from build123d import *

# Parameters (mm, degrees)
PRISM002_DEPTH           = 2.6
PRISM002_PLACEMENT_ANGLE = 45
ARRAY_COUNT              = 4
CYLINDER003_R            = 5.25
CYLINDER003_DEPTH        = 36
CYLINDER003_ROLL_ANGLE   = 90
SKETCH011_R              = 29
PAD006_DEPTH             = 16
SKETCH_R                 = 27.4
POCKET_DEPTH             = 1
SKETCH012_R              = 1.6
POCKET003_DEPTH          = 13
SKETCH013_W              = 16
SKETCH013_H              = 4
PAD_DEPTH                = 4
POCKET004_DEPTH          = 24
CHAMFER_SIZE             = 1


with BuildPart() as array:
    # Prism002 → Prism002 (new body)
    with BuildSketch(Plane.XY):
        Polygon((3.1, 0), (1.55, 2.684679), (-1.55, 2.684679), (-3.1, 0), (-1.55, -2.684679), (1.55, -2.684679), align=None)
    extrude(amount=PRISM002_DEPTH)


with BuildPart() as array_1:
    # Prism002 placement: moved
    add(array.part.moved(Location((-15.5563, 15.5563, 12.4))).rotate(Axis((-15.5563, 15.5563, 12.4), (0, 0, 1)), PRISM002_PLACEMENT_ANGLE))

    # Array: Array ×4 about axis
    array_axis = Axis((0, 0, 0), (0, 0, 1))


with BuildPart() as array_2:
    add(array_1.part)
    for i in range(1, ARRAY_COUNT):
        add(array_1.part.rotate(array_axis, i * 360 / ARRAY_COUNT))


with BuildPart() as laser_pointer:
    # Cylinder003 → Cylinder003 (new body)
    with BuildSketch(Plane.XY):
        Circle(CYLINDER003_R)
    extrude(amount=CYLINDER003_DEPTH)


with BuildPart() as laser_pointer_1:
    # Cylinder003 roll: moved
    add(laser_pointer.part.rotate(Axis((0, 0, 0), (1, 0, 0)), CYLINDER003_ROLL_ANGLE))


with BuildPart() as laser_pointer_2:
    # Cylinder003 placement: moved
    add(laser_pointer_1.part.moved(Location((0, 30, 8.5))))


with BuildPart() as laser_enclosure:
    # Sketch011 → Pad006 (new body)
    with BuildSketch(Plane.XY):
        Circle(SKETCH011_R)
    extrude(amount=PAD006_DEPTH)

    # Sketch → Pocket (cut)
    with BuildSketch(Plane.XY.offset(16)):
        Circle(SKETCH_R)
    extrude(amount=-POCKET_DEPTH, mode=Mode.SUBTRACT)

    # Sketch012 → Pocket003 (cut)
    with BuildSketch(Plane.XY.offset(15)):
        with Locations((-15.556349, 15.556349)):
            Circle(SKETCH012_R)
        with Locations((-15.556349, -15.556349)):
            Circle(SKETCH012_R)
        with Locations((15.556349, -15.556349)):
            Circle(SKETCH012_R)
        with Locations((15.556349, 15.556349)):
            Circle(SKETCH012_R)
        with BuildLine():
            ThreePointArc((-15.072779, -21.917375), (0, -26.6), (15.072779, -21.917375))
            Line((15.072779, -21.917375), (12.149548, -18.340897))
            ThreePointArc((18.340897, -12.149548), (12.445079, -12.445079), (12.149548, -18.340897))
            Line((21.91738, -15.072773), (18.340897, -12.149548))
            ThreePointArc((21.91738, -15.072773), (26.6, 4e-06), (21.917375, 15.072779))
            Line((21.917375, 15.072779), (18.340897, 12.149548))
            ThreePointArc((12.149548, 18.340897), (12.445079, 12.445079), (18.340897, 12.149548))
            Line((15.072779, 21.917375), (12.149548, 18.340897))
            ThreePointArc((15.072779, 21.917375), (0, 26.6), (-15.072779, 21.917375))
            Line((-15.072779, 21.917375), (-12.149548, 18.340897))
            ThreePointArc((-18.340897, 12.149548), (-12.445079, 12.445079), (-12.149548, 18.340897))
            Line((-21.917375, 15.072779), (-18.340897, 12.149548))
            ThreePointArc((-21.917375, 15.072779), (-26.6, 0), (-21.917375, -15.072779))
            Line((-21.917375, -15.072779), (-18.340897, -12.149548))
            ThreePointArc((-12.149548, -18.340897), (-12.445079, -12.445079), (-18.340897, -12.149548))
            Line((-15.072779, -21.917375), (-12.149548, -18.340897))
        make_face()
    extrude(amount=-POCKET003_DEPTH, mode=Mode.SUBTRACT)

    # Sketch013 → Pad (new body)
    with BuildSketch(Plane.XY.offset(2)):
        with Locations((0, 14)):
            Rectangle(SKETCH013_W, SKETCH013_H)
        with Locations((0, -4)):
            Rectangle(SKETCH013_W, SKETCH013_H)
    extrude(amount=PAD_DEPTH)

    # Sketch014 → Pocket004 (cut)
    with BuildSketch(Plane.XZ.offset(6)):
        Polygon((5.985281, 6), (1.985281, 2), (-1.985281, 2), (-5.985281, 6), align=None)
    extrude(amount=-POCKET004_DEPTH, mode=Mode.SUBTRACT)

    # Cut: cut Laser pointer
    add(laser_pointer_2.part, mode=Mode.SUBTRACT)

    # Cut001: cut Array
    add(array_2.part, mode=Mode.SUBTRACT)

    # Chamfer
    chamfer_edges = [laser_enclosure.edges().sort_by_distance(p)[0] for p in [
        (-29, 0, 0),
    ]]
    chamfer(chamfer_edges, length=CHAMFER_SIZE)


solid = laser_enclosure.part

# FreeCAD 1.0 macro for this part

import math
import FreeCAD as App
import Part
import Sketcher
Q = App.Units.Quantity


def edges_at(feature, points):
    """Names of the edges that pass closest to the given points."""
    edges = feature.Shape.Edges
    near = lambda p: min(range(len(edges)), key=lambda i: edges[i].distToShape(Part.Vertex(*p))[0])
    return sorted({f"Edge{near(p) + 1}" for p in points})

doc = App.newDocument("Part")
body = doc.addObject("PartDesign::Body", "Body")

# Sketch on XY plane
sketch1 = body.newObject("Sketcher::SketchObject", "Sketch")
sketch1.AttachmentSupport = (doc.getObject("XY_Plane"), [""])
sketch1.MapMode = "FlatFace"
sketch1.addGeometry([
    Part.LineSegment(App.Vector(3.1, 0, 0), App.Vector(1.55, 2.684679, 0)),  # 0
    Part.LineSegment(App.Vector(1.55, 2.684679, 0), App.Vector(-1.55, 2.684679, 0)),  # 1
    Part.LineSegment(App.Vector(-1.55, 2.684679, 0), App.Vector(-3.1, 0, 0)),  # 2
    Part.LineSegment(App.Vector(-3.1, 0, 0), App.Vector(-1.55, -2.684679, 0)),  # 3
    Part.LineSegment(App.Vector(-1.55, -2.684679, 0), App.Vector(1.55, -2.684679, 0)),  # 4
    Part.LineSegment(App.Vector(1.55, -2.684679, 0), App.Vector(3.1, 0, 0)),  # 5
], False)
sketch1.addConstraint([
    Sketcher.Constraint("Coincident", 0, 2, 1, 1),
    Sketcher.Constraint("Coincident", 1, 2, 2, 1),
    Sketcher.Constraint("Coincident", 2, 2, 3, 1),
    Sketcher.Constraint("Coincident", 3, 2, 4, 1),
    Sketcher.Constraint("Coincident", 4, 2, 5, 1),
    Sketcher.Constraint("Coincident", 5, 2, 0, 1),
    Sketcher.Constraint("Horizontal", 1),
    Sketcher.Constraint("Horizontal", 4),
    Sketcher.Constraint("Symmetric", 0, 2, 3, 2, -1, 1),
    Sketcher.Constraint("Symmetric", 2, 2, 5, 2, -1, 1),
    Sketcher.Constraint("PointOnObject", 2, 2, -1),
    Sketcher.Constraint("Parallel", 2, 5),
    Sketcher.Constraint("Vertical", 1, 2, 3, 2),
    Sketcher.Constraint("Angle", 0, Q("119.999998 deg")),
    Sketcher.Constraint("DistanceX", 1, 2, 1, 1, Q("3.1 mm")),
    Sketcher.Constraint("Distance", 0, Q("3.1 mm")),
])
pad1 = body.newObject("PartDesign::Pad", "Pad")
pad1.Profile = sketch1
pad1.Length = 2.6
body2 = doc.addObject("PartDesign::Body", "Body001")
doc.recompute()

body.Placement = App.Placement(App.Vector(-15.5563, 15.5563, 12.4), App.Rotation(App.Vector(0, 0, 1), 45))
boolean = body2.newObject("PartDesign::Boolean", "Boolean")
boolean.Type = "Fuse"
boolean.addObjects([body])
body3 = doc.addObject("PartDesign::Body", "Body002")
body3.AllowCompound = True
doc.recompute()

body3.BaseFeature = body2
doc.recompute()

body4 = doc.addObject("PartDesign::Body", "Body003")
body4.BaseFeature = body2
body4.Placement = App.Placement(App.Vector(0, 0, 0), App.Rotation(App.Vector(0, 0, 1), 90))
boolean2 = body3.newObject("PartDesign::Boolean", "Boolean001")
boolean2.Type = "Fuse"
boolean2.addObjects([body4])
doc.recompute()

body5 = doc.addObject("PartDesign::Body", "Body004")
body5.BaseFeature = body2
body5.Placement = App.Placement(App.Vector(0, 0, 0), App.Rotation(App.Vector(0, 0, 1), 180))
boolean3 = body3.newObject("PartDesign::Boolean", "Boolean002")
boolean3.Type = "Fuse"
boolean3.addObjects([body5])
doc.recompute()

body2.Placement = App.Placement(App.Vector(0, 0, 0), App.Rotation(App.Vector(0, 0, 1), 270))
boolean4 = body3.newObject("PartDesign::Boolean", "Boolean003")
boolean4.Type = "Fuse"
boolean4.addObjects([body2])
body6 = doc.addObject("PartDesign::Body", "Body005")

# Sketch on XY plane
sketch2 = body6.newObject("Sketcher::SketchObject", "Sketch001")
sketch2.AttachmentSupport = (doc.getObject("XY_Plane005"), [""])
sketch2.MapMode = "FlatFace"
sketch2.addGeometry(Part.Circle(App.Vector(0, 0, 0), App.Vector(0, 0, 1), 5.25), False)
sketch2.addConstraint([
    Sketcher.Constraint("Coincident", 0, 3, -1, 1),
    Sketcher.Constraint("Diameter", 0, Q("10.5 mm")),
])
pad2 = body6.newObject("PartDesign::Pad", "Pad001")
pad2.Profile = sketch2
pad2.Length = 36
body7 = doc.addObject("PartDesign::Body", "Body006")
doc.recompute()

body6.Placement = App.Placement(App.Vector(0, 0, 0), App.Rotation(App.Vector(1, 0, 0), 90))
boolean5 = body7.newObject("PartDesign::Boolean", "Boolean004")
boolean5.Type = "Fuse"
boolean5.addObjects([body6])
body8 = doc.addObject("PartDesign::Body", "Body007")
doc.recompute()

body7.Placement = App.Placement(App.Vector(0, 30, 8.5), App.Rotation(App.Vector(0, 0, 1), 0))
boolean6 = body8.newObject("PartDesign::Boolean", "Boolean005")
boolean6.Type = "Fuse"
boolean6.addObjects([body7])
body9 = doc.addObject("PartDesign::Body", "Body008")

# Sketch on XY plane
sketch3 = body9.newObject("Sketcher::SketchObject", "Sketch002")
sketch3.AttachmentSupport = (doc.getObject("XY_Plane008"), [""])
sketch3.MapMode = "FlatFace"
sketch3.addGeometry(Part.Circle(App.Vector(0, 0, 0), App.Vector(0, 0, 1), 29), False)
sketch3.addConstraint([
    Sketcher.Constraint("Coincident", 0, 3, -1, 1),
    Sketcher.Constraint("Diameter", 0, Q("58 mm")),
])
pad3 = body9.newObject("PartDesign::Pad", "Pad002")
pad3.Profile = sketch3
pad3.Length = 16

# Sketch on XY plane
sketch4 = body9.newObject("Sketcher::SketchObject", "Sketch003")
sketch4.AttachmentSupport = (doc.getObject("XY_Plane008"), [""])
sketch4.MapMode = "FlatFace"
sketch4.AttachmentOffset = App.Placement(App.Vector(0, 0, 16), App.Rotation())
sketch4.addGeometry(Part.Circle(App.Vector(0, 0, 0), App.Vector(0, 0, 1), 27.4), False)
sketch4.addConstraint([
    Sketcher.Constraint("Coincident", 0, 3, -1, 1),
    Sketcher.Constraint("Diameter", 0, Q("54.8 mm")),
])
pocket1 = body9.newObject("PartDesign::Pocket", "Pocket")
pocket1.Profile = sketch4
pocket1.Length = 1

# Sketch on XY plane
sketch5 = body9.newObject("Sketcher::SketchObject", "Sketch004")
sketch5.AttachmentSupport = (doc.getObject("XY_Plane008"), [""])
sketch5.MapMode = "FlatFace"
sketch5.AttachmentOffset = App.Placement(App.Vector(0, 0, 15), App.Rotation())
sketch5.addGeometry([
    Part.Circle(App.Vector(-15.556349, 15.556349, 0), App.Vector(0, 0, 1), 1.6),  # 0
    Part.Circle(App.Vector(-15.556349, -15.556349, 0), App.Vector(0, 0, 1), 1.6),  # 1
    Part.Circle(App.Vector(15.556349, -15.556349, 0), App.Vector(0, 0, 1), 1.6),  # 2
    Part.Circle(App.Vector(15.556349, 15.556349, 0), App.Vector(0, 0, 1), 1.6),  # 3
    Part.ArcOfCircle(Part.Circle(App.Vector(0, -0.000001, 0), App.Vector(0, 0, 1), 26.599999), math.radians(-124.51666), math.radians(-55.48334)),  # 4
    Part.LineSegment(App.Vector(15.072779, -21.917375, 0), App.Vector(12.149548, -18.340897, 0)),  # 5
    Part.ArcOfCircle(Part.Circle(App.Vector(15.556349, -15.556349, 0), App.Vector(0, 0, 1), 4.4), math.radians(50.739159), math.radians(219.260841)),  # 6
    Part.LineSegment(App.Vector(18.340897, -12.149548, 0), App.Vector(21.91738, -15.072773, 0)),  # 7
    Part.ArcOfCircle(Part.Circle(App.Vector(-0.000001, -0.000001, 0), App.Vector(0, 0, 1), 26.600001), math.radians(-34.516639), math.radians(34.516658)),  # 8
    Part.LineSegment(App.Vector(21.917375, 15.072779, 0), App.Vector(18.340897, 12.149548, 0)),  # 9
    Part.ArcOfCircle(Part.Circle(App.Vector(15.556349, 15.556349, 0), App.Vector(0, 0, 1), 4.4), math.radians(140.739159), math.radians(309.260841)),  # 10
    Part.LineSegment(App.Vector(12.149548, 18.340897, 0), App.Vector(15.072779, 21.917375, 0)),  # 11
    Part.ArcOfCircle(Part.Circle(App.Vector(0, 0.000001, 0), App.Vector(0, 0, 1), 26.599999), math.radians(55.48334), math.radians(124.51666)),  # 12
    Part.LineSegment(App.Vector(-15.072779, 21.917375, 0), App.Vector(-12.149548, 18.340897, 0)),  # 13
    Part.ArcOfCircle(Part.Circle(App.Vector(-15.556349, 15.556349, 0), App.Vector(0, 0, 1), 4.4), math.radians(-129.260841), math.radians(39.260841)),  # 14
    Part.LineSegment(App.Vector(-18.340897, 12.149548, 0), App.Vector(-21.917375, 15.072779, 0)),  # 15
    Part.ArcOfCircle(Part.Circle(App.Vector(-0.000001, 0, 0), App.Vector(0, 0, 1), 26.599999), math.radians(145.48334), math.radians(214.51666)),  # 16
    Part.LineSegment(App.Vector(-21.917375, -15.072779, 0), App.Vector(-18.340897, -12.149548, 0)),  # 17
    Part.ArcOfCircle(Part.Circle(App.Vector(-15.556349, -15.556349, 0), App.Vector(0, 0, 1), 4.4), math.radians(-39.260841), math.radians(129.260841)),  # 18
    Part.LineSegment(App.Vector(-12.149548, -18.340897, 0), App.Vector(-15.072779, -21.917375, 0)),  # 19
], False)
sketch5.addConstraint([
    Sketcher.Constraint("Coincident", 4, 2, 5, 1),
    Sketcher.Constraint("Tangent", 5, 2, 6, 2),
    Sketcher.Constraint("Coincident", 6, 1, 7, 1),
    Sketcher.Constraint("Coincident", 7, 2, 8, 1),
    Sketcher.Constraint("Coincident", 8, 2, 9, 1),
    Sketcher.Constraint("Tangent", 9, 2, 10, 2),
    Sketcher.Constraint("Tangent", 10, 1, 11, 1),
    Sketcher.Constraint("Coincident", 11, 2, 12, 1),
    Sketcher.Constraint("Coincident", 12, 2, 13, 1),
    Sketcher.Constraint("Tangent", 13, 2, 14, 2),
    Sketcher.Constraint("Tangent", 14, 1, 15, 1),
    Sketcher.Constraint("Coincident", 15, 2, 16, 1),
    Sketcher.Constraint("Coincident", 16, 2, 17, 1),
    Sketcher.Constraint("Tangent", 17, 2, 18, 2),
    Sketcher.Constraint("Tangent", 18, 1, 19, 1),
    Sketcher.Constraint("Coincident", 19, 2, 4, 1),
    Sketcher.Constraint("Coincident", 4, 3, -1, 1),
    Sketcher.Constraint("Coincident", 8, 3, -1, 1),
    Sketcher.Constraint("Coincident", 12, 3, -1, 1),
    Sketcher.Constraint("Coincident", 16, 3, -1, 1),
    Sketcher.Constraint("Coincident", 6, 3, 2, 3),
    Sketcher.Constraint("Coincident", 10, 3, 3, 3),
    Sketcher.Constraint("Coincident", 14, 3, 0, 3),
    Sketcher.Constraint("Coincident", 18, 3, 1, 3),
    Sketcher.Constraint("Equal", 0, 1),
    Sketcher.Constraint("Equal", 1, 2),
    Sketcher.Constraint("Equal", 2, 3),
    Sketcher.Constraint("Equal", 6, 10),
    Sketcher.Constraint("Equal", 4, 12),
    Sketcher.Constraint("Equal", 10, 14),
    Sketcher.Constraint("Equal", 12, 16),
    Sketcher.Constraint("Equal", 14, 18),
    Sketcher.Constraint("Symmetric", 0, 3, 2, 3, -1, 1),
    Sketcher.Constraint("Symmetric", 1, 3, 3, 3, -1, 1),
    Sketcher.Constraint("Symmetric", 7, 2, 15, 2, -1, 1),
    Sketcher.Constraint("Symmetric", 1, 3, 2, 3, -2),
    Sketcher.Constraint("Perpendicular", 5, 9),
    Sketcher.Constraint("Perpendicular", 7, 11),
    Sketcher.Constraint("Perpendicular", 9, 13),
    Sketcher.Constraint("Perpendicular", 13, 17),
    Sketcher.Constraint("Perpendicular", 15, 19),
    Sketcher.Constraint("Horizontal", 11, 2, 12, 2),
    Sketcher.Constraint("Horizontal", 6, 1, 17, 2),
    Sketcher.Constraint("Equal", 5, 7),
    Sketcher.Constraint("Diameter", 0, Q("3.2 mm")),
    Sketcher.Constraint("Radius", 4, Q("26.599999 mm")),
    Sketcher.Constraint("Radius", 6, Q("4.4 mm")),
    Sketcher.Constraint("DistanceY", 1, 3, 0, 3, Q("31.112698 mm")),
    Sketcher.Constraint("DistanceX", 5, 2, 6, 3, Q("3.406801 mm")),
])
pocket2 = body9.newObject("PartDesign::Pocket", "Pocket001")
pocket2.Profile = sketch5
pocket2.Length = 13

# Sketch on XY plane
sketch6 = body9.newObject("Sketcher::SketchObject", "Sketch005")
sketch6.AttachmentSupport = (doc.getObject("XY_Plane008"), [""])
sketch6.MapMode = "FlatFace"
sketch6.AttachmentOffset = App.Placement(App.Vector(0, 0, 2), App.Rotation())
sketch6.addGeometry([
    Part.LineSegment(App.Vector(-8, 16, 0), App.Vector(-8, 12, 0)),  # 0
    Part.LineSegment(App.Vector(-8, 12, 0), App.Vector(8, 12, 0)),  # 1
    Part.LineSegment(App.Vector(8, 12, 0), App.Vector(8, 16, 0)),  # 2
    Part.LineSegment(App.Vector(8, 16, 0), App.Vector(-8, 16, 0)),  # 3
    Part.LineSegment(App.Vector(-8, -2, 0), App.Vector(-8, -6, 0)),  # 4
    Part.LineSegment(App.Vector(-8, -6, 0), App.Vector(8, -6, 0)),  # 5
    Part.LineSegment(App.Vector(8, -6, 0), App.Vector(8, -2, 0)),  # 6
    Part.LineSegment(App.Vector(8, -2, 0), App.Vector(-8, -2, 0)),  # 7
], False)
sketch6.addConstraint([
    Sketcher.Constraint("Coincident", 0, 2, 1, 1),
    Sketcher.Constraint("Coincident", 1, 2, 2, 1),
    Sketcher.Constraint("Coincident", 2, 2, 3, 1),
    Sketcher.Constraint("Coincident", 3, 2, 0, 1),
    Sketcher.Constraint("Coincident", 4, 2, 5, 1),
    Sketcher.Constraint("Coincident", 5, 2, 6, 1),
    Sketcher.Constraint("Coincident", 6, 2, 7, 1),
    Sketcher.Constraint("Coincident", 7, 2, 4, 1),
    Sketcher.Constraint("Vertical", 0),
    Sketcher.Constraint("Horizontal", 1),
    Sketcher.Constraint("Vertical", 2),
    Sketcher.Constraint("Horizontal", 3),
    Sketcher.Constraint("Vertical", 4),
    Sketcher.Constraint("Horizontal", 5),
    Sketcher.Constraint("Vertical", 6),
    Sketcher.Constraint("Horizontal", 7),
    Sketcher.Constraint("Vertical", 3, 2, 4, 2),
    Sketcher.Constraint("Vertical", 2, 2, 5, 2),
    Sketcher.Constraint("Equal", 2, 4),
    Sketcher.Constraint("DistanceX", 1, 1, 1, 2, Q("16 mm")),
    Sketcher.Constraint("DistanceY", 0, 2, 0, 1, Q("4 mm")),
    Sketcher.Constraint("DistanceX", 0, 2, -1, 1, Q("8 mm")),
    Sketcher.Constraint("DistanceY", -1, 1, 0, 2, Q("12 mm")),
    Sketcher.Constraint("DistanceY", 4, 2, -1, 1, Q("6 mm")),
])
pad4 = body9.newObject("PartDesign::Pad", "Pad003")
pad4.Profile = sketch6
pad4.Length = 4

# Sketch on XZ plane
sketch7 = body9.newObject("Sketcher::SketchObject", "Sketch006")
sketch7.AttachmentSupport = (doc.getObject("XZ_Plane008"), [""])
sketch7.MapMode = "FlatFace"
sketch7.AttachmentOffset = App.Placement(App.Vector(0, 0, 6), App.Rotation())
sketch7.addGeometry([
    Part.LineSegment(App.Vector(1.985281, 2, 0), App.Vector(5.985281, 6, 0)),
    Part.LineSegment(App.Vector(5.985281, 6, 0), App.Vector(-5.985281, 6, 0)),
    Part.LineSegment(App.Vector(-5.985281, 6, 0), App.Vector(-1.985281, 2, 0)),
    Part.LineSegment(App.Vector(-1.985281, 2, 0), App.Vector(1.985281, 2, 0)),
], False)
sketch7.addConstraint([
    Sketcher.Constraint("Coincident", 0, 2, 1, 1),
    Sketcher.Constraint("Coincident", 1, 2, 2, 1),
    Sketcher.Constraint("Coincident", 2, 2, 3, 1),
    Sketcher.Constraint("Coincident", 3, 2, 0, 1),
    Sketcher.Constraint("Horizontal", 1),
    Sketcher.Constraint("Horizontal", 3),
    Sketcher.Constraint("Perpendicular", 0, 2),
    Sketcher.Constraint("Equal", 0, 2),
    Sketcher.Constraint("DistanceY", -1, 1, 0, 2, Q("6 mm")),
    Sketcher.Constraint("DistanceY", -1, 1, 2, 2, Q("2 mm")),
    Sketcher.Constraint("DistanceX", 1, 2, 1, 1, Q("11.970562 mm")),
    Sketcher.Constraint("DistanceX", -1, 1, 0, 2, Q("5.985281 mm")),
])
pocket3 = body9.newObject("PartDesign::Pocket", "Pocket002")
pocket3.Profile = sketch7
pocket3.Length = 24
doc.recompute()

boolean7 = body9.newObject("PartDesign::Boolean", "Boolean006")
boolean7.Type = "Cut"
boolean7.addObjects([body8])
doc.recompute()

boolean8 = body9.newObject("PartDesign::Boolean", "Boolean007")
boolean8.Type = "Cut"
boolean8.addObjects([body3])
doc.recompute()

chamfer = body9.newObject("PartDesign::Chamfer", "Chamfer")
chamfer.Base = (boolean8, edges_at(boolean8, [(-29, 0, 0)]))
chamfer.Size = 1

doc.recompute()
